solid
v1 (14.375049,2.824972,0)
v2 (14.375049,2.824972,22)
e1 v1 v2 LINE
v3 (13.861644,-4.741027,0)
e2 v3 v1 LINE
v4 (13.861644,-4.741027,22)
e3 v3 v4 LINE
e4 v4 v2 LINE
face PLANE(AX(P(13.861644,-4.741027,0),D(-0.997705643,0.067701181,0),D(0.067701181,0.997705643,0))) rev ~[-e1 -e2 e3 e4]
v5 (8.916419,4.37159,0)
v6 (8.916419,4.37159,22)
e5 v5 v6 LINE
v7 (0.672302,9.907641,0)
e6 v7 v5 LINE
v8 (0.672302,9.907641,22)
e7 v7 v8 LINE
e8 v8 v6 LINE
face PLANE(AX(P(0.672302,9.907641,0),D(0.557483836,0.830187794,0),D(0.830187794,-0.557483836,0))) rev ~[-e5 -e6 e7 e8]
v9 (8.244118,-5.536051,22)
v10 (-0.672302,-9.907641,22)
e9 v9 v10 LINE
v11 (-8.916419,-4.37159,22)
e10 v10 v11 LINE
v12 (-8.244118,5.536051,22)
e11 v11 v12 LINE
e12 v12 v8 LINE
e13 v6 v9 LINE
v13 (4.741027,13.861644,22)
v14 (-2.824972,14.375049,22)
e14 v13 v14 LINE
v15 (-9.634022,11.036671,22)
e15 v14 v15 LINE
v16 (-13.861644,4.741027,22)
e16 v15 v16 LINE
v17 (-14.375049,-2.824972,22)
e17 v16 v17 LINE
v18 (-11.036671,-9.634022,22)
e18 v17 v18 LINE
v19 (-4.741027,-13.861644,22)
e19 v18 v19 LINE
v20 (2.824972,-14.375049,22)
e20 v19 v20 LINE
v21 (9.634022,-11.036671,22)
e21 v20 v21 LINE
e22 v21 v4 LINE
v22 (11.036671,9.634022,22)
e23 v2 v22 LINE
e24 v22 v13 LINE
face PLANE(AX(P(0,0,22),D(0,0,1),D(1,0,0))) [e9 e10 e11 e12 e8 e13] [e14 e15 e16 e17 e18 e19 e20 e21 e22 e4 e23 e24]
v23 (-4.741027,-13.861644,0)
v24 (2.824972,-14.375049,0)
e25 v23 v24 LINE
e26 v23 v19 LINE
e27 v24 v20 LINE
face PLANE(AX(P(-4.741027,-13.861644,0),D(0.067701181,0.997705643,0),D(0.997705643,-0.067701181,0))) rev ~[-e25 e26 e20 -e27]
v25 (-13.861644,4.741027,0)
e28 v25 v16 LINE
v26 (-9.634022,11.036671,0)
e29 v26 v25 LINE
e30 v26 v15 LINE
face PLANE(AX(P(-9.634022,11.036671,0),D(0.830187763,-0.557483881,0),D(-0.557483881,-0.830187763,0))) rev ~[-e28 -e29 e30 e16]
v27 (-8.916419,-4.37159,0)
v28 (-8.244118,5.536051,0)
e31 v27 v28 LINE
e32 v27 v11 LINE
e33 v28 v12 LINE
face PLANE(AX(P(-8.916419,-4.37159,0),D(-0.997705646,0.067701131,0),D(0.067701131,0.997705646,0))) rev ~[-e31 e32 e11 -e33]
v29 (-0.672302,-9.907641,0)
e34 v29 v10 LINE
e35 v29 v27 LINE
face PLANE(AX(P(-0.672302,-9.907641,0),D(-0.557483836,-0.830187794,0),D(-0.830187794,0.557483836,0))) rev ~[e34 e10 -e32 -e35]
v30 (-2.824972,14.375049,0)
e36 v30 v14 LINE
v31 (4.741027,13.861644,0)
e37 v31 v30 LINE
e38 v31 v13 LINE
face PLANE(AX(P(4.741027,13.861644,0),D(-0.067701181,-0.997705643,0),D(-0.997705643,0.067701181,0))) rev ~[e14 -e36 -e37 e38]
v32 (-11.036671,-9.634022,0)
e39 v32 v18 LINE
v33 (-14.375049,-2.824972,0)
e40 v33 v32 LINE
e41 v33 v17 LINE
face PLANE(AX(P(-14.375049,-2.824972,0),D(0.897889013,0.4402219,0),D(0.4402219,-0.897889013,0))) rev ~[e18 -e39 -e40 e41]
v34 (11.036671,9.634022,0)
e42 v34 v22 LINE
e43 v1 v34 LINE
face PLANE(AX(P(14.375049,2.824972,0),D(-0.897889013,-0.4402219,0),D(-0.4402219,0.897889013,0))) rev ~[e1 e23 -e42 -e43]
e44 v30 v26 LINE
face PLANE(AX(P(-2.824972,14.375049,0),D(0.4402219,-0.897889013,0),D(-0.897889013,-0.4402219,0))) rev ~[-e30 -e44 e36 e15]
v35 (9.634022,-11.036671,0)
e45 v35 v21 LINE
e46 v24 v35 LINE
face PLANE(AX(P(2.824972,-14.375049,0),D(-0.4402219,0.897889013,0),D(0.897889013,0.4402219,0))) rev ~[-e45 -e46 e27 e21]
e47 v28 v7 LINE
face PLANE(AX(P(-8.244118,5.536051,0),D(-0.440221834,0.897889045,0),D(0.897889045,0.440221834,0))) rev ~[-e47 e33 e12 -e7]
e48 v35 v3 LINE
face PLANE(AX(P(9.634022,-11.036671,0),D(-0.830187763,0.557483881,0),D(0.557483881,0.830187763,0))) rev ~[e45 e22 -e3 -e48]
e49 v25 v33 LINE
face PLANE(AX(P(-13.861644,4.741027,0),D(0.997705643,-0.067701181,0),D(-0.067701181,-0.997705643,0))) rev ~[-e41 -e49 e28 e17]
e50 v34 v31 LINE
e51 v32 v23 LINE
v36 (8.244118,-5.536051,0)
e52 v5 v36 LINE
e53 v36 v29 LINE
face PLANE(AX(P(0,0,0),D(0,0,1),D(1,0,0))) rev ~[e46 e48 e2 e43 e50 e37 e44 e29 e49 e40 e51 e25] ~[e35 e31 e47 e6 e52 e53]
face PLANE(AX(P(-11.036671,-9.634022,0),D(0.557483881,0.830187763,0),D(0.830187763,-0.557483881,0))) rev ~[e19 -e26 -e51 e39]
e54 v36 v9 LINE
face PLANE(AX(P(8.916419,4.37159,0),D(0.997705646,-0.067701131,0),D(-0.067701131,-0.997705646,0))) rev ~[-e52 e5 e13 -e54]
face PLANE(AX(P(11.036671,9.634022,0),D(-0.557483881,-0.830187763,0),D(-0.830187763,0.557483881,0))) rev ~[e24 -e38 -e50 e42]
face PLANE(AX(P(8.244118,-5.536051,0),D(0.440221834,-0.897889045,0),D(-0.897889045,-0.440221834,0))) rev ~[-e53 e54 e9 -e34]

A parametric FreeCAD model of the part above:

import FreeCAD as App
import Part
import Sketcher

V = App.Vector


def add_polygon(sketch, points):
    """Adds a closed chain of lines whose ends are joined by coincident constraints."""
    first, n = sketch.GeometryCount, len(points)
    for a, b in zip(points, points[1:] + points[:1]):
        sketch.addGeometry(Part.LineSegment(App.Vector(*a, 0), App.Vector(*b, 0)), False)
    for i in range(n):
        sketch.addConstraint(Sketcher.Constraint("Coincident", first + i, 2, first + (i + 1) % n, 1))

doc = App.newDocument("Part")
body = doc.addObject("PartDesign::Body", "Body")

sketch1 = body.newObject("Sketcher::SketchObject", "Sketch")
sketch1.AttachmentSupport = (doc.getObject("XY_Plane"), [""])
sketch1.MapMode = "FlatFace"
add_polygon(sketch1, [(14, -5), (14, 3), (11, 10), (5, 14), (-3, 14), (-10, 11), (-14, 5), (-14, -3), (-11, -10), (-5, -14), (3, -14), (10, -11)])
add_polygon(sketch1, [(-9, -4), (-8, 6), (1, 10), (9, 4), (8, -6), (-1, -10)])
sketch1.addConstraint(Sketcher.Constraint("Symmetric", 0, 2, 6, 2, -1, 1))
sketch1.addConstraint(Sketcher.Constraint("Symmetric", 1, 2, 7, 2, -1, 1))
sketch1.addConstraint(Sketcher.Constraint("Symmetric", 2, 2, 8, 2, -1, 1))
sketch1.addConstraint(Sketcher.Constraint("Symmetric", 3, 2, 9, 2, -1, 1))
sketch1.addConstraint(Sketcher.Constraint("Symmetric", 4, 2, 10, 2, -1, 1))
sketch1.addConstraint(Sketcher.Constraint("Symmetric", 5, 2, 11, 2, -1, 1))
sketch1.addConstraint(Sketcher.Constraint("Symmetric", 12, 2, 15, 2, -1, 1))
sketch1.addConstraint(Sketcher.Constraint("Symmetric", 13, 2, 16, 2, -1, 1))
sketch1.addConstraint(Sketcher.Constraint("Symmetric", 14, 2, 17, 2, -1, 1))
sketch1.addConstraint(Sketcher.Constraint("Perpendicular", 0, 3))
sketch1.addConstraint(Sketcher.Constraint("Perpendicular", 1, 4))
sketch1.addConstraint(Sketcher.Constraint("Perpendicular", 2, 5))
sketch1.addConstraint(Sketcher.Constraint("Perpendicular", 9, 12))
sketch1.addConstraint(Sketcher.Constraint("Parallel", 10, 13))
sketch1.addConstraint(Sketcher.Constraint("Perpendicular", 11, 14))
sketch1.addConstraint(Sketcher.Constraint("Equal", 0, 1))
sketch1.addConstraint(Sketcher.Constraint("Equal", 1, 2))
sketch1.addConstraint(Sketcher.Constraint("Equal", 2, 3))
sketch1.addConstraint(Sketcher.Constraint("Equal", 3, 4))
sketch1.addConstraint(Sketcher.Constraint("Equal", 4, 5))
sketch1.addConstraint(Sketcher.Constraint("Equal", 12, 13))
sketch1.addConstraint(Sketcher.Constraint("Equal", 13, 14))
sketch1.addConstraint(Sketcher.Constraint("DistanceX", 3, 2, 2, 2, 7.565999))
sketch1.addConstraint(Sketcher.Constraint("Distance", 0, 7.583398))
sketch1.addConstraint(Sketcher.Constraint("DistanceX", -1, 1, 13, 2, 0.672302))
sketch1.addConstraint(Sketcher.Constraint("DistanceY", 0, 2, 4, 2, 8.211699))
sketch1.addConstraint(Sketcher.Constraint("DistanceX", 15, 2, 14, 2, 0.672301))
pad1 = body.newObject("PartDesign::Pad", "Pad")
pad1.Profile = sketch1
pad1.Length = 22

doc.recompute()
